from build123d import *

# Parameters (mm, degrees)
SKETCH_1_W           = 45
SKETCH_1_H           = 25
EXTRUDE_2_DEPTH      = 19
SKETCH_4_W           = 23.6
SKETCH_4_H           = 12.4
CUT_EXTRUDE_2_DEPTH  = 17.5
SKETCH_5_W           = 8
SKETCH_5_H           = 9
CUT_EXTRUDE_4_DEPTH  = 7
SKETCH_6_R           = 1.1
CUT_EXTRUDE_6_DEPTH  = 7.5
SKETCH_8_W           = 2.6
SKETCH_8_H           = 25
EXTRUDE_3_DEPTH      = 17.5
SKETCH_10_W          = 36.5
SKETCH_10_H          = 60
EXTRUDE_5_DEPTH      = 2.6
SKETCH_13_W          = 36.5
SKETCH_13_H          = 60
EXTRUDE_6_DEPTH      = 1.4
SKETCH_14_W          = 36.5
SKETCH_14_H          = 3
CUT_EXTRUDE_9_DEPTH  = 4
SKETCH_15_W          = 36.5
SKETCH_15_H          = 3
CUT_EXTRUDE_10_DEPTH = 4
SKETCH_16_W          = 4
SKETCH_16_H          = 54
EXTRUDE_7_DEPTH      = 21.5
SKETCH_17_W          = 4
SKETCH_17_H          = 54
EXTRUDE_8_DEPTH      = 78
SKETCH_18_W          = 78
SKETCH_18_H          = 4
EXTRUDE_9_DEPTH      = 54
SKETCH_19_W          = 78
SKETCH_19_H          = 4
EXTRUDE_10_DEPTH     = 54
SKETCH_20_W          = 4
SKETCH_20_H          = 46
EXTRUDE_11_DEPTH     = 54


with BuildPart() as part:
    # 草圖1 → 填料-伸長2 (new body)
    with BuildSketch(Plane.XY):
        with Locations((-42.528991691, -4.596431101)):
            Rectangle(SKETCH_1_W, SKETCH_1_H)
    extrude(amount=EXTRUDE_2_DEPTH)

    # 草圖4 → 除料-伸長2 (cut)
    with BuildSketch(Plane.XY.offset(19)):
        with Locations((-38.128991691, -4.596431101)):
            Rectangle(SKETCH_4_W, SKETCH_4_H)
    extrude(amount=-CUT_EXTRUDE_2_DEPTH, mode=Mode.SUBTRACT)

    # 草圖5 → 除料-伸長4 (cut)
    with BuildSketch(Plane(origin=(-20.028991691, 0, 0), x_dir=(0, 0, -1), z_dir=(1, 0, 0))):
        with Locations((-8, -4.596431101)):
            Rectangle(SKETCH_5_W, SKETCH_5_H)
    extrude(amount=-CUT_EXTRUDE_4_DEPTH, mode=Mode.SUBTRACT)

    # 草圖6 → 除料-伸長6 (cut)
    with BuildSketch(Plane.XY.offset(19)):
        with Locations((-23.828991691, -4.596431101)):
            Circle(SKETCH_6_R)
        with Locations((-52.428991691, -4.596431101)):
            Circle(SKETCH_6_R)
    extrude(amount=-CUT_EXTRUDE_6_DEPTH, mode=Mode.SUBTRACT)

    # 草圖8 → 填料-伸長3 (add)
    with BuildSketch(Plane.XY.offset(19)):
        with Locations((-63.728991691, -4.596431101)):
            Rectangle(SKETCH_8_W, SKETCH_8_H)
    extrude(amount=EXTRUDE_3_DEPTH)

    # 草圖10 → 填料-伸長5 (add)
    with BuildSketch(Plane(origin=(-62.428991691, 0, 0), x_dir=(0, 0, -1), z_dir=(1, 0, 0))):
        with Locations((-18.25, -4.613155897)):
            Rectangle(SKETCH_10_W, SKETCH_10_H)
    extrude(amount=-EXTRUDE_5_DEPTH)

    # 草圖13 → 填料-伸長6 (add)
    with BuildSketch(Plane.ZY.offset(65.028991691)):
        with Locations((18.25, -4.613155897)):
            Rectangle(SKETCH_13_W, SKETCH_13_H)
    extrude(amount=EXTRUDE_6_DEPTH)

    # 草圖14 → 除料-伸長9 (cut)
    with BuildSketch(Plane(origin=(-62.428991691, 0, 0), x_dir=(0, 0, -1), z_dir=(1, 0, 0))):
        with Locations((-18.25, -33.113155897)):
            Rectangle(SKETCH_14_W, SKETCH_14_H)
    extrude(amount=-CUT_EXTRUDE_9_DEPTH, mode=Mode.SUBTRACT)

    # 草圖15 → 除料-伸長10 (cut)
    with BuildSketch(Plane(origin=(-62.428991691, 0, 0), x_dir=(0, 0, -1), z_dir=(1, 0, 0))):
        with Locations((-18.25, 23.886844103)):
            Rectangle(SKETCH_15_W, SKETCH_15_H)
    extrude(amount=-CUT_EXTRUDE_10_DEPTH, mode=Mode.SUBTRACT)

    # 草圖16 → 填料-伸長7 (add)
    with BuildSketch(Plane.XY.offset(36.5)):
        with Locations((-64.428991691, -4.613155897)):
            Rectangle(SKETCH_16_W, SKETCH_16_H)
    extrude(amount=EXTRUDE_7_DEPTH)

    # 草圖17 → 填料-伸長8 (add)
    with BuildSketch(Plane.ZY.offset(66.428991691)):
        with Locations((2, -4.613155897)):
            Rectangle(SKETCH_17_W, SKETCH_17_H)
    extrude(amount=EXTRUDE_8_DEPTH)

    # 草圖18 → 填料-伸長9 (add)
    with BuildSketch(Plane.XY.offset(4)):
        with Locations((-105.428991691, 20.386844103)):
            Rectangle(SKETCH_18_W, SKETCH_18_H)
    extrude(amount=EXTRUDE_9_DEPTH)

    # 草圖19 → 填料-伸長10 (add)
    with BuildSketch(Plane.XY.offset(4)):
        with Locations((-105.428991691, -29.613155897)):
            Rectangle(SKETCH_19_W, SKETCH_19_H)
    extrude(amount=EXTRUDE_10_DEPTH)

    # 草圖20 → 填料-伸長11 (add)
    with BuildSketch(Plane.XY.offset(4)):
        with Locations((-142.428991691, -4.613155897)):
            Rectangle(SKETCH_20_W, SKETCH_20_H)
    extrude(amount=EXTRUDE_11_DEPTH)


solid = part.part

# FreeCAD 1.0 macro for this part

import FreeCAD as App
import Part
import Sketcher

V = App.Vector
Q = App.Units.Quantity

doc = App.newDocument("Part")
body = doc.addObject("PartDesign::Body", "Body")

sketch1 = doc.addObject("Sketcher::SketchObject", "Sketch")
body.addObject(sketch1)
sketch1.AttachmentSupport = (doc.XY_Plane, [""])
sketch1.MapMode = "FlatFace"
sketch1.addGeometry(Part.LineSegment(V(-65, 8, 0), V(-65, -17, 0)), False)
sketch1.addGeometry(Part.LineSegment(V(-65, -17, 0), V(-20, -17, 0)), False)
sketch1.addGeometry(Part.LineSegment(V(-20, -17, 0), V(-20, 8, 0)), False)
sketch1.addGeometry(Part.LineSegment(V(-20, 8, 0), V(-65, 8, 0)), False)
sketch1.addConstraint(Sketcher.Constraint("Coincident", 0, 2, 1, 1))
sketch1.addConstraint(Sketcher.Constraint("Coincident", 1, 2, 2, 1))
sketch1.addConstraint(Sketcher.Constraint("Coincident", 2, 2, 3, 1))
sketch1.addConstraint(Sketcher.Constraint("Coincident", 3, 2, 0, 1))
sketch1.addConstraint(Sketcher.Constraint("Vertical", 0))
sketch1.addConstraint(Sketcher.Constraint("Horizontal", 1))
sketch1.addConstraint(Sketcher.Constraint("Vertical", 2))
sketch1.addConstraint(Sketcher.Constraint("Horizontal", 3))
sketch1.addConstraint(Sketcher.Constraint("DistanceX", 1, 1, 1, 2, Q("45 mm")))
sketch1.addConstraint(Sketcher.Constraint("DistanceY", 0, 2, 0, 1, Q("25 mm")))
sketch1.addConstraint(Sketcher.Constraint("DistanceX", 0, 2, -1, 1, Q("65.028992 mm")))
sketch1.addConstraint(Sketcher.Constraint("DistanceY", 0, 2, -1, 1, Q("17.096431 mm")))
pad1 = doc.addObject("PartDesign::Pad", "Pad")
body.addObject(pad1)
pad1.Profile = sketch1
pad1.Length = 19

sketch2 = doc.addObject("Sketcher::SketchObject", "Sketch001")
body.addObject(sketch2)
sketch2.AttachmentSupport = (doc.XY_Plane, [""])
sketch2.MapMode = "FlatFace"
sketch2.AttachmentOffset = App.Placement(V(0, 0, 19), App.Rotation())
sketch2.addGeometry(Part.LineSegment(V(-50, 2, 0), V(-50, -11, 0)), False)
sketch2.addGeometry(Part.LineSegment(V(-50, -11, 0), V(-26, -11, 0)), False)
sketch2.addGeometry(Part.LineSegment(V(-26, -11, 0), V(-26, 2, 0)), False)
sketch2.addGeometry(Part.LineSegment(V(-26, 2, 0), V(-50, 2, 0)), False)
sketch2.addConstraint(Sketcher.Constraint("Coincident", 0, 2, 1, 1))
sketch2.addConstraint(Sketcher.Constraint("Coincident", 1, 2, 2, 1))
sketch2.addConstraint(Sketcher.Constraint("Coincident", 2, 2, 3, 1))
sketch2.addConstraint(Sketcher.Constraint("Coincident", 3, 2, 0, 1))
sketch2.addConstraint(Sketcher.Constraint("Vertical", 0))
sketch2.addConstraint(Sketcher.Constraint("Horizontal", 1))
sketch2.addConstraint(Sketcher.Constraint("Vertical", 2))
sketch2.addConstraint(Sketcher.Constraint("Horizontal", 3))
sketch2.addConstraint(Sketcher.Constraint("DistanceX", 1, 1, 1, 2, Q("23.6 mm")))
sketch2.addConstraint(Sketcher.Constraint("DistanceY", 0, 2, 0, 1, Q("12.4 mm")))
sketch2.addConstraint(Sketcher.Constraint("DistanceX", 0, 2, -1, 1, Q("49.928992 mm")))
sketch2.addConstraint(Sketcher.Constraint("DistanceY", 0, 2, -1, 1, Q("10.796431 mm")))
pocket1 = doc.addObject("PartDesign::Pocket", "Pocket")
body.addObject(pocket1)
pocket1.Profile = sketch2
pocket1.Length = 17.5

sketch3 = doc.addObject("Sketcher::SketchObject", "Sketch002")
body.addObject(sketch3)
sketch3.AttachmentSupport = (doc.YZ_Plane, [""])
sketch3.MapMode = "FlatFace"
sketch3.AttachmentOffset = App.Placement(V(0, 0, -20.028992), App.Rotation())
sketch3.addGeometry(Part.LineSegment(V(0, 12, 0), V(-9, 12, 0)), False)
sketch3.addGeometry(Part.LineSegment(V(-9, 12, 0), V(-9, 4, 0)), False)
sketch3.addGeometry(Part.LineSegment(V(-9, 4, 0), V(0, 4, 0)), False)
sketch3.addGeometry(Part.LineSegment(V(0, 4, 0), V(0, 12, 0)), False)
sketch3.addConstraint(Sketcher.Constraint("Coincident", 0, 2, 1, 1))
sketch3.addConstraint(Sketcher.Constraint("Coincident", 1, 2, 2, 1))
sketch3.addConstraint(Sketcher.Constraint("Coincident", 2, 2, 3, 1))
sketch3.addConstraint(Sketcher.Constraint("Coincident", 3, 2, 0, 1))
sketch3.addConstraint(Sketcher.Constraint("Horizontal", 0))
sketch3.addConstraint(Sketcher.Constraint("Vertical", 1))
sketch3.addConstraint(Sketcher.Constraint("Horizontal", 2))
sketch3.addConstraint(Sketcher.Constraint("Vertical", 3))
sketch3.addConstraint(Sketcher.Constraint("DistanceX", 0, 2, 0, 1, Q("9 mm")))
sketch3.addConstraint(Sketcher.Constraint("DistanceY", 1, 2, 1, 1, Q("8 mm")))
sketch3.addConstraint(Sketcher.Constraint("DistanceY", -1, 1, 0, 2, Q("12 mm")))
sketch3.addConstraint(Sketcher.Constraint("DistanceX", 0, 2, -1, 1, Q("9.096431 mm")))
pocket2 = doc.addObject("PartDesign::Pocket", "Pocket001")
body.addObject(pocket2)
pocket2.Profile = sketch3
pocket2.Length = 7

sketch4 = doc.addObject("Sketcher::SketchObject", "Sketch003")
body.addObject(sketch4)
sketch4.AttachmentSupport = (doc.XY_Plane, [""])
sketch4.MapMode = "FlatFace"
sketch4.AttachmentOffset = App.Placement(V(0, 0, 19), App.Rotation())
sketch4.addGeometry(Part.Circle(V(-23.8, -4.6, 0), V(0, 0, 1), 1.1), False)
sketch4.addGeometry(Part.Circle(V(-52.4, -4.6, 0), V(0, 0, 1), 1.1), False)
sketch4.addConstraint(Sketcher.Constraint("Equal", 0, 1))
sketch4.addConstraint(Sketcher.Constraint("Horizontal", 0, 3, 1, 3))
sketch4.addConstraint(Sketcher.Constraint("Diameter", 0, Q("2.2 mm")))
sketch4.addConstraint(Sketcher.Constraint("DistanceX", 1, 3, 0, 3, Q("28.6 mm")))
sketch4.addConstraint(Sketcher.Constraint("DistanceX", 0, 3, -1, 1, Q("23.828992 mm")))
sketch4.addConstraint(Sketcher.Constraint("DistanceY", 0, 3, -1, 1, Q("4.596431 mm")))
pocket3 = doc.addObject("PartDesign::Pocket", "Pocket002")
body.addObject(pocket3)
pocket3.Profile = sketch4
pocket3.Length = 7.5

sketch5 = doc.addObject("Sketcher::SketchObject", "Sketch004")
body.addObject(sketch5)
sketch5.AttachmentSupport = (doc.XY_Plane, [""])
sketch5.MapMode = "FlatFace"
sketch5.AttachmentOffset = App.Placement(V(0, 0, 19), App.Rotation())
sketch5.addGeometry(Part.LineSegment(V(-65, 7.9, 0), V(-65, -17.1, 0)), False)
sketch5.addGeometry(Part.LineSegment(V(-65, -17.1, 0), V(-62.4, -17.1, 0)), False)
sketch5.addGeometry(Part.LineSegment(V(-62.4, -17.1, 0), V(-62.4, 7.9, 0)), False)
sketch5.addGeometry(Part.LineSegment(V(-62.4, 7.9, 0), V(-65, 7.9, 0)), False)
sketch5.addConstraint(Sketcher.Constraint("Coincident", 0, 2, 1, 1))
sketch5.addConstraint(Sketcher.Constraint("Coincident", 1, 2, 2, 1))
sketch5.addConstraint(Sketcher.Constraint("Coincident", 2, 2, 3, 1))
sketch5.addConstraint(Sketcher.Constraint("Coincident", 3, 2, 0, 1))
sketch5.addConstraint(Sketcher.Constraint("Vertical", 0))
sketch5.addConstraint(Sketcher.Constraint("Horizontal", 1))
sketch5.addConstraint(Sketcher.Constraint("Vertical", 2))
sketch5.addConstraint(Sketcher.Constraint("Horizontal", 3))
sketch5.addConstraint(Sketcher.Constraint("DistanceY", 0, 2, 0, 1, Q("25 mm")))
sketch5.addConstraint(Sketcher.Constraint("DistanceX", 1, 1, 1, 2, Q("2.6 mm")))
sketch5.addConstraint(Sketcher.Constraint("DistanceX", 0, 2, -1, 1, Q("65.028992 mm")))
sketch5.addConstraint(Sketcher.Constraint("DistanceY", 0, 2, -1, 1, Q("17.096431 mm")))
pad2 = doc.addObject("PartDesign::Pad", "Pad001")
body.addObject(pad2)
pad2.Profile = sketch5
pad2.Length = 17.5

sketch6 = doc.addObject("Sketcher::SketchObject", "Sketch005")
body.addObject(sketch6)
sketch6.AttachmentSupport = (doc.YZ_Plane, [""])
sketch6.MapMode = "FlatFace"
sketch6.AttachmentOffset = App.Placement(V(0, 0, -62.428992), App.Rotation())
sketch6.addGeometry(Part.LineSegment(V(25, 36, 0), V(-35, 36, 0)), False)
sketch6.addGeometry(Part.LineSegment(V(-35, 36, 0), V(-35, 0, 0)), False)
sketch6.addGeometry(Part.LineSegment(V(-35, 0, 0), V(25, 0, 0)), False)
sketch6.addGeometry(Part.LineSegment(V(25, 0, 0), V(25, 36, 0)), False)
sketch6.addConstraint(Sketcher.Constraint("Coincident", 0, 2, 1, 1))
sketch6.addConstraint(Sketcher.Constraint("Coincident", 1, 2, 2, 1))
sketch6.addConstraint(Sketcher.Constraint("Coincident", 2, 2, 3, 1))
sketch6.addConstraint(Sketcher.Constraint("Coincident", 3, 2, 0, 1))
sketch6.addConstraint(Sketcher.Constraint("Horizontal", 0))
sketch6.addConstraint(Sketcher.Constraint("Vertical", 1))
sketch6.addConstraint(Sketcher.Constraint("Horizontal", 2))
sketch6.addConstraint(Sketcher.Constraint("Vertical", 3))
sketch6.addConstraint(Sketcher.Constraint("PointOnObject", 1, 2, -1))
sketch6.addConstraint(Sketcher.Constraint("DistanceX", 0, 2, 0, 1, Q("60 mm")))
sketch6.addConstraint(Sketcher.Constraint("DistanceY", 1, 2, 1, 1, Q("36.5 mm")))
sketch6.addConstraint(Sketcher.Constraint("DistanceX", 0, 2, -1, 1, Q("34.613156 mm")))
pad3 = doc.addObject("PartDesign::Pad", "Pad002")
body.addObject(pad3)
pad3.Profile = sketch6
pad3.Length = 2.6
pad3.Reversed = True

sketch7 = doc.addObject("Sketcher::SketchObject", "Sketch006")
body.addObject(sketch7)
sketch7.AttachmentSupport = (doc.YZ_Plane, [""])
sketch7.MapMode = "FlatFace"
sketch7.AttachmentOffset = App.Placement(V(0, 0, -65.028992), App.Rotation())
sketch7.addGeometry(Part.LineSegment(V(25, 0, 0), V(-35, 0, 0)), False)
sketch7.addGeometry(Part.LineSegment(V(-35, 0, 0), V(-35, 36, 0)), False)
sketch7.addGeometry(Part.LineSegment(V(-35, 36, 0), V(25, 36, 0)), False)
sketch7.addGeometry(Part.LineSegment(V(25, 36, 0), V(25, 0, 0)), False)
sketch7.addConstraint(Sketcher.Constraint("Coincident", 0, 2, 1, 1))
sketch7.addConstraint(Sketcher.Constraint("Coincident", 1, 2, 2, 1))
sketch7.addConstraint(Sketcher.Constraint("Coincident", 2, 2, 3, 1))
sketch7.addConstraint(Sketcher.Constraint("Coincident", 3, 2, 0, 1))
sketch7.addConstraint(Sketcher.Constraint("Horizontal", 0))
sketch7.addConstraint(Sketcher.Constraint("Vertical", 1))
sketch7.addConstraint(Sketcher.Constraint("Horizontal", 2))
sketch7.addConstraint(Sketcher.Constraint("Vertical", 3))
sketch7.addConstraint(Sketcher.Constraint("PointOnObject", 0, 2, -1))
sketch7.addConstraint(Sketcher.Constraint("DistanceX", 0, 2, 0, 1, Q("60 mm")))
sketch7.addConstraint(Sketcher.Constraint("DistanceY", 1, 1, 1, 2, Q("36.5 mm")))
sketch7.addConstraint(Sketcher.Constraint("DistanceX", 0, 2, -1, 1, Q("34.613156 mm")))
pad4 = doc.addObject("PartDesign::Pad", "Pad003")
body.addObject(pad4)
pad4.Profile = sketch7
pad4.Length = 1.4
pad4.Reversed = True

sketch8 = doc.addObject("Sketcher::SketchObject", "Sketch007")
body.addObject(sketch8)
sketch8.AttachmentSupport = (doc.YZ_Plane, [""])
sketch8.MapMode = "FlatFace"
sketch8.AttachmentOffset = App.Placement(V(0, 0, -62.428992), App.Rotation())
sketch8.addGeometry(Part.LineSegment(V(-31.6, 36.5, 0), V(-34.6, 36.5, 0)), False)
sketch8.addGeometry(Part.LineSegment(V(-34.6, 36.5, 0), V(-34.6, 0, 0)), False)
sketch8.addGeometry(Part.LineSegment(V(-34.6, 0, 0), V(-31.6, 0, 0)), False)
sketch8.addGeometry(Part.LineSegment(V(-31.6, 0, 0), V(-31.6, 36.5, 0)), False)
sketch8.addConstraint(Sketcher.Constraint("Coincident", 0, 2, 1, 1))
sketch8.addConstraint(Sketcher.Constraint("Coincident", 1, 2, 2, 1))
sketch8.addConstraint(Sketcher.Constraint("Coincident", 2, 2, 3, 1))
sketch8.addConstraint(Sketcher.Constraint("Coincident", 3, 2, 0, 1))
sketch8.addConstraint(Sketcher.Constraint("Horizontal", 0))
sketch8.addConstraint(Sketcher.Constraint("Vertical", 1))
sketch8.addConstraint(Sketcher.Constraint("Horizontal", 2))
sketch8.addConstraint(Sketcher.Constraint("Vertical", 3))
sketch8.addConstraint(Sketcher.Constraint("PointOnObject", 1, 2, -1))
sketch8.addConstraint(Sketcher.Constraint("DistanceX", 0, 2, 0, 1, Q("3 mm")))
sketch8.addConstraint(Sketcher.Constraint("DistanceY", 1, 2, 1, 1, Q("36.5 mm")))
sketch8.addConstraint(Sketcher.Constraint("DistanceX", 0, 2, -1, 1, Q("34.613156 mm")))
pocket4 = doc.addObject("PartDesign::Pocket", "Pocket003")
body.addObject(pocket4)
pocket4.Profile = sketch8
pocket4.Length = 4

sketch9 = doc.addObject("Sketcher::SketchObject", "Sketch008")
body.addObject(sketch9)
sketch9.AttachmentSupport = (doc.YZ_Plane, [""])
sketch9.MapMode = "FlatFace"
sketch9.AttachmentOffset = App.Placement(V(0, 0, -62.428992), App.Rotation())
sketch9.addGeometry(Part.LineSegment(V(25.4, 36.5, 0), V(22.4, 36.5, 0)), False)
sketch9.addGeometry(Part.LineSegment(V(22.4, 36.5, 0), V(22.4, 0, 0)), False)
sketch9.addGeometry(Part.LineSegment(V(22.4, 0, 0), V(25.4, 0, 0)), False)
sketch9.addGeometry(Part.LineSegment(V(25.4, 0, 0), V(25.4, 36.5, 0)), False)
sketch9.addConstraint(Sketcher.Constraint("Coincident", 0, 2, 1, 1))
sketch9.addConstraint(Sketcher.Constraint("Coincident", 1, 2, 2, 1))
sketch9.addConstraint(Sketcher.Constraint("Coincident", 2, 2, 3, 1))
sketch9.addConstraint(Sketcher.Constraint("Coincident", 3, 2, 0, 1))
sketch9.addConstraint(Sketcher.Constraint("Horizontal", 0))
sketch9.addConstraint(Sketcher.Constraint("Vertical", 1))
sketch9.addConstraint(Sketcher.Constraint("Horizontal", 2))
sketch9.addConstraint(Sketcher.Constraint("Vertical", 3))
sketch9.addConstraint(Sketcher.Constraint("PointOnObject", 1, 2, -1))
sketch9.addConstraint(Sketcher.Constraint("DistanceX", 0, 2, 0, 1, Q("3 mm")))
sketch9.addConstraint(Sketcher.Constraint("DistanceY", 1, 2, 1, 1, Q("36.5 mm")))
sketch9.addConstraint(Sketcher.Constraint("DistanceX", -1, 1, 0, 2, Q("22.386844 mm")))
pocket5 = doc.addObject("PartDesign::Pocket", "Pocket004")
body.addObject(pocket5)
pocket5.Profile = sketch9
pocket5.Length = 4

sketch10 = doc.addObject("Sketcher::SketchObject", "Sketch009")
body.addObject(sketch10)
sketch10.AttachmentSupport = (doc.XY_Plane, [""])
sketch10.MapMode = "FlatFace"
sketch10.AttachmentOffset = App.Placement(V(0, 0, 36.5), App.Rotation())
sketch10.addGeometry(Part.LineSegment(V(-66.4, 22.4, 0), V(-66.4, -31.6, 0)), False)
sketch10.addGeometry(Part.LineSegment(V(-66.4, -31.6, 0), V(-62.4, -31.6, 0)), False)
sketch10.addGeometry(Part.LineSegment(V(-62.4, -31.6, 0), V(-62.4, 22.4, 0)), False)
sketch10.addGeometry(Part.LineSegment(V(-62.4, 22.4, 0), V(-66.4, 22.4, 0)), False)
sketch10.addConstraint(Sketcher.Constraint("Coincident", 0, 2, 1, 1))
sketch10.addConstraint(Sketcher.Constraint("Coincident", 1, 2, 2, 1))
sketch10.addConstraint(Sketcher.Constraint("Coincident", 2, 2, 3, 1))
sketch10.addConstraint(Sketcher.Constraint("Coincident", 3, 2, 0, 1))
sketch10.addConstraint(Sketcher.Constraint("Vertical", 0))
sketch10.addConstraint(Sketcher.Constraint("Horizontal", 1))
sketch10.addConstraint(Sketcher.Constraint("Vertical", 2))
sketch10.addConstraint(Sketcher.Constraint("Horizontal", 3))
sketch10.addConstraint(Sketcher.Constraint("DistanceX", 1, 1, 1, 2, Q("4 mm")))
sketch10.addConstraint(Sketcher.Constraint("DistanceY", 0, 2, 0, 1, Q("54 mm")))
sketch10.addConstraint(Sketcher.Constraint("DistanceX", 0, 2, -1, 1, Q("66.428992 mm")))
sketch10.addConstraint(Sketcher.Constraint("DistanceY", 0, 2, -1, 1, Q("31.613156 mm")))
pad5 = doc.addObject("PartDesign::Pad", "Pad004")
body.addObject(pad5)
pad5.Profile = sketch10
pad5.Length = 21.5

sketch11 = doc.addObject("Sketcher::SketchObject", "Sketch010")
body.addObject(sketch11)
sketch11.AttachmentSupport = (doc.YZ_Plane, [""])
sketch11.MapMode = "FlatFace"
sketch11.AttachmentOffset = App.Placement(V(0, 0, -66.428992), App.Rotation())
sketch11.addGeometry(Part.LineSegment(V(22.4, 0, 0), V(-31.6, 0, 0)), False)
sketch11.addGeometry(Part.LineSegment(V(-31.6, 0, 0), V(-31.6, 4, 0)), False)
sketch11.addGeometry(Part.LineSegment(V(-31.6, 4, 0), V(22.4, 4, 0)), False)
sketch11.addGeometry(Part.LineSegment(V(22.4, 4, 0), V(22.4, 0, 0)), False)
sketch11.addConstraint(Sketcher.Constraint("Coincident", 0, 2, 1, 1))
sketch11.addConstraint(Sketcher.Constraint("Coincident", 1, 2, 2, 1))
sketch11.addConstraint(Sketcher.Constraint("Coincident", 2, 2, 3, 1))
sketch11.addConstraint(Sketcher.Constraint("Coincident", 3, 2, 0, 1))
sketch11.addConstraint(Sketcher.Constraint("Horizontal", 0))
sketch11.addConstraint(Sketcher.Constraint("Vertical", 1))
sketch11.addConstraint(Sketcher.Constraint("Horizontal", 2))
sketch11.addConstraint(Sketcher.Constraint("Vertical", 3))
sketch11.addConstraint(Sketcher.Constraint("PointOnObject", 0, 2, -1))
sketch11.addConstraint(Sketcher.Constraint("DistanceX", 0, 2, 0, 1, Q("54 mm")))
sketch11.addConstraint(Sketcher.Constraint("DistanceY", 1, 1, 1, 2, Q("4 mm")))
sketch11.addConstraint(Sketcher.Constraint("DistanceX", 0, 2, -1, 1, Q("31.613156 mm")))
pad6 = doc.addObject("PartDesign::Pad", "Pad005")
body.addObject(pad6)
pad6.Profile = sketch11
pad6.Length = 78
pad6.Reversed = True

sketch12 = doc.addObject("Sketcher::SketchObject", "Sketch011")
body.addObject(sketch12)
sketch12.AttachmentSupport = (doc.XY_Plane, [""])
sketch12.MapMode = "FlatFace"
sketch12.AttachmentOffset = App.Placement(V(0, 0, 4), App.Rotation())
sketch12.addGeometry(Part.LineSegment(V(-144.4, 22.4, 0), V(-144.4, 18.4, 0)), False)
sketch12.addGeometry(Part.LineSegment(V(-144.4, 18.4, 0), V(-66.4, 18.4, 0)), False)
sketch12.addGeometry(Part.LineSegment(V(-66.4, 18.4, 0), V(-66.4, 22.4, 0)), False)
sketch12.addGeometry(Part.LineSegment(V(-66.4, 22.4, 0), V(-144.4, 22.4, 0)), False)
sketch12.addConstraint(Sketcher.Constraint("Coincident", 0, 2, 1, 1))
sketch12.addConstraint(Sketcher.Constraint("Coincident", 1, 2, 2, 1))
sketch12.addConstraint(Sketcher.Constraint("Coincident", 2, 2, 3, 1))
sketch12.addConstraint(Sketcher.Constraint("Coincident", 3, 2, 0, 1))
sketch12.addConstraint(Sketcher.Constraint("Vertical", 0))
sketch12.addConstraint(Sketcher.Constraint("Horizontal", 1))
sketch12.addConstraint(Sketcher.Constraint("Vertical", 2))
sketch12.addConstraint(Sketcher.Constraint("Horizontal", 3))
sketch12.addConstraint(Sketcher.Constraint("DistanceX", 1, 1, 1, 2, Q("78 mm")))
sketch12.addConstraint(Sketcher.Constraint("DistanceY", 0, 2, 0, 1, Q("4 mm")))
sketch12.addConstraint(Sketcher.Constraint("DistanceX", 0, 2, -1, 1, Q("144.428992 mm")))
sketch12.addConstraint(Sketcher.Constraint("DistanceY", -1, 1, 0, 2, Q("18.386844 mm")))
pad7 = doc.addObject("PartDesign::Pad", "Pad006")
body.addObject(pad7)
pad7.Profile = sketch12
pad7.Length = 54

sketch13 = doc.addObject("Sketcher::SketchObject", "Sketch012")
body.addObject(sketch13)
sketch13.AttachmentSupport = (doc.XY_Plane, [""])
sketch13.MapMode = "FlatFace"
sketch13.AttachmentOffset = App.Placement(V(0, 0, 4), App.Rotation())
sketch13.addGeometry(Part.LineSegment(V(-144.4, -27.6, 0), V(-144.4, -31.6, 0)), False)
sketch13.addGeometry(Part.LineSegment(V(-144.4, -31.6, 0), V(-66.4, -31.6, 0)), False)
sketch13.addGeometry(Part.LineSegment(V(-66.4, -31.6, 0), V(-66.4, -27.6, 0)), False)
sketch13.addGeometry(Part.LineSegment(V(-66.4, -27.6, 0), V(-144.4, -27.6, 0)), False)
sketch13.addConstraint(Sketcher.Constraint("Coincident", 0, 2, 1, 1))
sketch13.addConstraint(Sketcher.Constraint("Coincident", 1, 2, 2, 1))
sketch13.addConstraint(Sketcher.Constraint("Coincident", 2, 2, 3, 1))
sketch13.addConstraint(Sketcher.Constraint("Coincident", 3, 2, 0, 1))
sketch13.addConstraint(Sketcher.Constraint("Vertical", 0))
sketch13.addConstraint(Sketcher.Constraint("Horizontal", 1))
sketch13.addConstraint(Sketcher.Constraint("Vertical", 2))
sketch13.addConstraint(Sketcher.Constraint("Horizontal", 3))
sketch13.addConstraint(Sketcher.Constraint("DistanceX", 1, 1, 1, 2, Q("78 mm")))
sketch13.addConstraint(Sketcher.Constraint("DistanceY", 0, 2, 0, 1, Q("4 mm")))
sketch13.addConstraint(Sketcher.Constraint("DistanceX", 0, 2, -1, 1, Q("144.428992 mm")))
sketch13.addConstraint(Sketcher.Constraint("DistanceY", 0, 2, -1, 1, Q("31.613156 mm")))
pad8 = doc.addObject("PartDesign::Pad", "Pad007")
body.addObject(pad8)
pad8.Profile = sketch13
pad8.Length = 54

sketch14 = doc.addObject("Sketcher::SketchObject", "Sketch013")
body.addObject(sketch14)
sketch14.AttachmentSupport = (doc.XY_Plane, [""])
sketch14.MapMode = "FlatFace"
sketch14.AttachmentOffset = App.Placement(V(0, 0, 4), App.Rotation())
sketch14.addGeometry(Part.LineSegment(V(-144.4, 18.4, 0), V(-144.4, -27.6, 0)), False)
sketch14.addGeometry(Part.LineSegment(V(-144.4, -27.6, 0), V(-140.4, -27.6, 0)), False)
sketch14.addGeometry(Part.LineSegment(V(-140.4, -27.6, 0), V(-140.4, 18.4, 0)), False)
sketch14.addGeometry(Part.LineSegment(V(-140.4, 18.4, 0), V(-144.4, 18.4, 0)), False)
sketch14.addConstraint(Sketcher.Constraint("Coincident", 0, 2, 1, 1))
sketch14.addConstraint(Sketcher.Constraint("Coincident", 1, 2, 2, 1))
sketch14.addConstraint(Sketcher.Constraint("Coincident", 2, 2, 3, 1))
sketch14.addConstraint(Sketcher.Constraint("Coincident", 3, 2, 0, 1))
sketch14.addConstraint(Sketcher.Constraint("Vertical", 0))
sketch14.addConstraint(Sketcher.Constraint("Horizontal", 1))
sketch14.addConstraint(Sketcher.Constraint("Vertical", 2))
sketch14.addConstraint(Sketcher.Constraint("Horizontal", 3))
sketch14.addConstraint(Sketcher.Constraint("DistanceX", 1, 1, 1, 2, Q("4 mm")))
sketch14.addConstraint(Sketcher.Constraint("DistanceY", 0, 2, 0, 1, Q("46 mm")))
sketch14.addConstraint(Sketcher.Constraint("DistanceX", 0, 2, -1, 1, Q("144.428992 mm")))
sketch14.addConstraint(Sketcher.Constraint("DistanceY", 0, 2, -1, 1, Q("27.613156 mm")))
pad9 = doc.addObject("PartDesign::Pad", "Pad008")
body.addObject(pad9)
pad9.Profile = sketch14
pad9.Length = 54

doc.recompute()
